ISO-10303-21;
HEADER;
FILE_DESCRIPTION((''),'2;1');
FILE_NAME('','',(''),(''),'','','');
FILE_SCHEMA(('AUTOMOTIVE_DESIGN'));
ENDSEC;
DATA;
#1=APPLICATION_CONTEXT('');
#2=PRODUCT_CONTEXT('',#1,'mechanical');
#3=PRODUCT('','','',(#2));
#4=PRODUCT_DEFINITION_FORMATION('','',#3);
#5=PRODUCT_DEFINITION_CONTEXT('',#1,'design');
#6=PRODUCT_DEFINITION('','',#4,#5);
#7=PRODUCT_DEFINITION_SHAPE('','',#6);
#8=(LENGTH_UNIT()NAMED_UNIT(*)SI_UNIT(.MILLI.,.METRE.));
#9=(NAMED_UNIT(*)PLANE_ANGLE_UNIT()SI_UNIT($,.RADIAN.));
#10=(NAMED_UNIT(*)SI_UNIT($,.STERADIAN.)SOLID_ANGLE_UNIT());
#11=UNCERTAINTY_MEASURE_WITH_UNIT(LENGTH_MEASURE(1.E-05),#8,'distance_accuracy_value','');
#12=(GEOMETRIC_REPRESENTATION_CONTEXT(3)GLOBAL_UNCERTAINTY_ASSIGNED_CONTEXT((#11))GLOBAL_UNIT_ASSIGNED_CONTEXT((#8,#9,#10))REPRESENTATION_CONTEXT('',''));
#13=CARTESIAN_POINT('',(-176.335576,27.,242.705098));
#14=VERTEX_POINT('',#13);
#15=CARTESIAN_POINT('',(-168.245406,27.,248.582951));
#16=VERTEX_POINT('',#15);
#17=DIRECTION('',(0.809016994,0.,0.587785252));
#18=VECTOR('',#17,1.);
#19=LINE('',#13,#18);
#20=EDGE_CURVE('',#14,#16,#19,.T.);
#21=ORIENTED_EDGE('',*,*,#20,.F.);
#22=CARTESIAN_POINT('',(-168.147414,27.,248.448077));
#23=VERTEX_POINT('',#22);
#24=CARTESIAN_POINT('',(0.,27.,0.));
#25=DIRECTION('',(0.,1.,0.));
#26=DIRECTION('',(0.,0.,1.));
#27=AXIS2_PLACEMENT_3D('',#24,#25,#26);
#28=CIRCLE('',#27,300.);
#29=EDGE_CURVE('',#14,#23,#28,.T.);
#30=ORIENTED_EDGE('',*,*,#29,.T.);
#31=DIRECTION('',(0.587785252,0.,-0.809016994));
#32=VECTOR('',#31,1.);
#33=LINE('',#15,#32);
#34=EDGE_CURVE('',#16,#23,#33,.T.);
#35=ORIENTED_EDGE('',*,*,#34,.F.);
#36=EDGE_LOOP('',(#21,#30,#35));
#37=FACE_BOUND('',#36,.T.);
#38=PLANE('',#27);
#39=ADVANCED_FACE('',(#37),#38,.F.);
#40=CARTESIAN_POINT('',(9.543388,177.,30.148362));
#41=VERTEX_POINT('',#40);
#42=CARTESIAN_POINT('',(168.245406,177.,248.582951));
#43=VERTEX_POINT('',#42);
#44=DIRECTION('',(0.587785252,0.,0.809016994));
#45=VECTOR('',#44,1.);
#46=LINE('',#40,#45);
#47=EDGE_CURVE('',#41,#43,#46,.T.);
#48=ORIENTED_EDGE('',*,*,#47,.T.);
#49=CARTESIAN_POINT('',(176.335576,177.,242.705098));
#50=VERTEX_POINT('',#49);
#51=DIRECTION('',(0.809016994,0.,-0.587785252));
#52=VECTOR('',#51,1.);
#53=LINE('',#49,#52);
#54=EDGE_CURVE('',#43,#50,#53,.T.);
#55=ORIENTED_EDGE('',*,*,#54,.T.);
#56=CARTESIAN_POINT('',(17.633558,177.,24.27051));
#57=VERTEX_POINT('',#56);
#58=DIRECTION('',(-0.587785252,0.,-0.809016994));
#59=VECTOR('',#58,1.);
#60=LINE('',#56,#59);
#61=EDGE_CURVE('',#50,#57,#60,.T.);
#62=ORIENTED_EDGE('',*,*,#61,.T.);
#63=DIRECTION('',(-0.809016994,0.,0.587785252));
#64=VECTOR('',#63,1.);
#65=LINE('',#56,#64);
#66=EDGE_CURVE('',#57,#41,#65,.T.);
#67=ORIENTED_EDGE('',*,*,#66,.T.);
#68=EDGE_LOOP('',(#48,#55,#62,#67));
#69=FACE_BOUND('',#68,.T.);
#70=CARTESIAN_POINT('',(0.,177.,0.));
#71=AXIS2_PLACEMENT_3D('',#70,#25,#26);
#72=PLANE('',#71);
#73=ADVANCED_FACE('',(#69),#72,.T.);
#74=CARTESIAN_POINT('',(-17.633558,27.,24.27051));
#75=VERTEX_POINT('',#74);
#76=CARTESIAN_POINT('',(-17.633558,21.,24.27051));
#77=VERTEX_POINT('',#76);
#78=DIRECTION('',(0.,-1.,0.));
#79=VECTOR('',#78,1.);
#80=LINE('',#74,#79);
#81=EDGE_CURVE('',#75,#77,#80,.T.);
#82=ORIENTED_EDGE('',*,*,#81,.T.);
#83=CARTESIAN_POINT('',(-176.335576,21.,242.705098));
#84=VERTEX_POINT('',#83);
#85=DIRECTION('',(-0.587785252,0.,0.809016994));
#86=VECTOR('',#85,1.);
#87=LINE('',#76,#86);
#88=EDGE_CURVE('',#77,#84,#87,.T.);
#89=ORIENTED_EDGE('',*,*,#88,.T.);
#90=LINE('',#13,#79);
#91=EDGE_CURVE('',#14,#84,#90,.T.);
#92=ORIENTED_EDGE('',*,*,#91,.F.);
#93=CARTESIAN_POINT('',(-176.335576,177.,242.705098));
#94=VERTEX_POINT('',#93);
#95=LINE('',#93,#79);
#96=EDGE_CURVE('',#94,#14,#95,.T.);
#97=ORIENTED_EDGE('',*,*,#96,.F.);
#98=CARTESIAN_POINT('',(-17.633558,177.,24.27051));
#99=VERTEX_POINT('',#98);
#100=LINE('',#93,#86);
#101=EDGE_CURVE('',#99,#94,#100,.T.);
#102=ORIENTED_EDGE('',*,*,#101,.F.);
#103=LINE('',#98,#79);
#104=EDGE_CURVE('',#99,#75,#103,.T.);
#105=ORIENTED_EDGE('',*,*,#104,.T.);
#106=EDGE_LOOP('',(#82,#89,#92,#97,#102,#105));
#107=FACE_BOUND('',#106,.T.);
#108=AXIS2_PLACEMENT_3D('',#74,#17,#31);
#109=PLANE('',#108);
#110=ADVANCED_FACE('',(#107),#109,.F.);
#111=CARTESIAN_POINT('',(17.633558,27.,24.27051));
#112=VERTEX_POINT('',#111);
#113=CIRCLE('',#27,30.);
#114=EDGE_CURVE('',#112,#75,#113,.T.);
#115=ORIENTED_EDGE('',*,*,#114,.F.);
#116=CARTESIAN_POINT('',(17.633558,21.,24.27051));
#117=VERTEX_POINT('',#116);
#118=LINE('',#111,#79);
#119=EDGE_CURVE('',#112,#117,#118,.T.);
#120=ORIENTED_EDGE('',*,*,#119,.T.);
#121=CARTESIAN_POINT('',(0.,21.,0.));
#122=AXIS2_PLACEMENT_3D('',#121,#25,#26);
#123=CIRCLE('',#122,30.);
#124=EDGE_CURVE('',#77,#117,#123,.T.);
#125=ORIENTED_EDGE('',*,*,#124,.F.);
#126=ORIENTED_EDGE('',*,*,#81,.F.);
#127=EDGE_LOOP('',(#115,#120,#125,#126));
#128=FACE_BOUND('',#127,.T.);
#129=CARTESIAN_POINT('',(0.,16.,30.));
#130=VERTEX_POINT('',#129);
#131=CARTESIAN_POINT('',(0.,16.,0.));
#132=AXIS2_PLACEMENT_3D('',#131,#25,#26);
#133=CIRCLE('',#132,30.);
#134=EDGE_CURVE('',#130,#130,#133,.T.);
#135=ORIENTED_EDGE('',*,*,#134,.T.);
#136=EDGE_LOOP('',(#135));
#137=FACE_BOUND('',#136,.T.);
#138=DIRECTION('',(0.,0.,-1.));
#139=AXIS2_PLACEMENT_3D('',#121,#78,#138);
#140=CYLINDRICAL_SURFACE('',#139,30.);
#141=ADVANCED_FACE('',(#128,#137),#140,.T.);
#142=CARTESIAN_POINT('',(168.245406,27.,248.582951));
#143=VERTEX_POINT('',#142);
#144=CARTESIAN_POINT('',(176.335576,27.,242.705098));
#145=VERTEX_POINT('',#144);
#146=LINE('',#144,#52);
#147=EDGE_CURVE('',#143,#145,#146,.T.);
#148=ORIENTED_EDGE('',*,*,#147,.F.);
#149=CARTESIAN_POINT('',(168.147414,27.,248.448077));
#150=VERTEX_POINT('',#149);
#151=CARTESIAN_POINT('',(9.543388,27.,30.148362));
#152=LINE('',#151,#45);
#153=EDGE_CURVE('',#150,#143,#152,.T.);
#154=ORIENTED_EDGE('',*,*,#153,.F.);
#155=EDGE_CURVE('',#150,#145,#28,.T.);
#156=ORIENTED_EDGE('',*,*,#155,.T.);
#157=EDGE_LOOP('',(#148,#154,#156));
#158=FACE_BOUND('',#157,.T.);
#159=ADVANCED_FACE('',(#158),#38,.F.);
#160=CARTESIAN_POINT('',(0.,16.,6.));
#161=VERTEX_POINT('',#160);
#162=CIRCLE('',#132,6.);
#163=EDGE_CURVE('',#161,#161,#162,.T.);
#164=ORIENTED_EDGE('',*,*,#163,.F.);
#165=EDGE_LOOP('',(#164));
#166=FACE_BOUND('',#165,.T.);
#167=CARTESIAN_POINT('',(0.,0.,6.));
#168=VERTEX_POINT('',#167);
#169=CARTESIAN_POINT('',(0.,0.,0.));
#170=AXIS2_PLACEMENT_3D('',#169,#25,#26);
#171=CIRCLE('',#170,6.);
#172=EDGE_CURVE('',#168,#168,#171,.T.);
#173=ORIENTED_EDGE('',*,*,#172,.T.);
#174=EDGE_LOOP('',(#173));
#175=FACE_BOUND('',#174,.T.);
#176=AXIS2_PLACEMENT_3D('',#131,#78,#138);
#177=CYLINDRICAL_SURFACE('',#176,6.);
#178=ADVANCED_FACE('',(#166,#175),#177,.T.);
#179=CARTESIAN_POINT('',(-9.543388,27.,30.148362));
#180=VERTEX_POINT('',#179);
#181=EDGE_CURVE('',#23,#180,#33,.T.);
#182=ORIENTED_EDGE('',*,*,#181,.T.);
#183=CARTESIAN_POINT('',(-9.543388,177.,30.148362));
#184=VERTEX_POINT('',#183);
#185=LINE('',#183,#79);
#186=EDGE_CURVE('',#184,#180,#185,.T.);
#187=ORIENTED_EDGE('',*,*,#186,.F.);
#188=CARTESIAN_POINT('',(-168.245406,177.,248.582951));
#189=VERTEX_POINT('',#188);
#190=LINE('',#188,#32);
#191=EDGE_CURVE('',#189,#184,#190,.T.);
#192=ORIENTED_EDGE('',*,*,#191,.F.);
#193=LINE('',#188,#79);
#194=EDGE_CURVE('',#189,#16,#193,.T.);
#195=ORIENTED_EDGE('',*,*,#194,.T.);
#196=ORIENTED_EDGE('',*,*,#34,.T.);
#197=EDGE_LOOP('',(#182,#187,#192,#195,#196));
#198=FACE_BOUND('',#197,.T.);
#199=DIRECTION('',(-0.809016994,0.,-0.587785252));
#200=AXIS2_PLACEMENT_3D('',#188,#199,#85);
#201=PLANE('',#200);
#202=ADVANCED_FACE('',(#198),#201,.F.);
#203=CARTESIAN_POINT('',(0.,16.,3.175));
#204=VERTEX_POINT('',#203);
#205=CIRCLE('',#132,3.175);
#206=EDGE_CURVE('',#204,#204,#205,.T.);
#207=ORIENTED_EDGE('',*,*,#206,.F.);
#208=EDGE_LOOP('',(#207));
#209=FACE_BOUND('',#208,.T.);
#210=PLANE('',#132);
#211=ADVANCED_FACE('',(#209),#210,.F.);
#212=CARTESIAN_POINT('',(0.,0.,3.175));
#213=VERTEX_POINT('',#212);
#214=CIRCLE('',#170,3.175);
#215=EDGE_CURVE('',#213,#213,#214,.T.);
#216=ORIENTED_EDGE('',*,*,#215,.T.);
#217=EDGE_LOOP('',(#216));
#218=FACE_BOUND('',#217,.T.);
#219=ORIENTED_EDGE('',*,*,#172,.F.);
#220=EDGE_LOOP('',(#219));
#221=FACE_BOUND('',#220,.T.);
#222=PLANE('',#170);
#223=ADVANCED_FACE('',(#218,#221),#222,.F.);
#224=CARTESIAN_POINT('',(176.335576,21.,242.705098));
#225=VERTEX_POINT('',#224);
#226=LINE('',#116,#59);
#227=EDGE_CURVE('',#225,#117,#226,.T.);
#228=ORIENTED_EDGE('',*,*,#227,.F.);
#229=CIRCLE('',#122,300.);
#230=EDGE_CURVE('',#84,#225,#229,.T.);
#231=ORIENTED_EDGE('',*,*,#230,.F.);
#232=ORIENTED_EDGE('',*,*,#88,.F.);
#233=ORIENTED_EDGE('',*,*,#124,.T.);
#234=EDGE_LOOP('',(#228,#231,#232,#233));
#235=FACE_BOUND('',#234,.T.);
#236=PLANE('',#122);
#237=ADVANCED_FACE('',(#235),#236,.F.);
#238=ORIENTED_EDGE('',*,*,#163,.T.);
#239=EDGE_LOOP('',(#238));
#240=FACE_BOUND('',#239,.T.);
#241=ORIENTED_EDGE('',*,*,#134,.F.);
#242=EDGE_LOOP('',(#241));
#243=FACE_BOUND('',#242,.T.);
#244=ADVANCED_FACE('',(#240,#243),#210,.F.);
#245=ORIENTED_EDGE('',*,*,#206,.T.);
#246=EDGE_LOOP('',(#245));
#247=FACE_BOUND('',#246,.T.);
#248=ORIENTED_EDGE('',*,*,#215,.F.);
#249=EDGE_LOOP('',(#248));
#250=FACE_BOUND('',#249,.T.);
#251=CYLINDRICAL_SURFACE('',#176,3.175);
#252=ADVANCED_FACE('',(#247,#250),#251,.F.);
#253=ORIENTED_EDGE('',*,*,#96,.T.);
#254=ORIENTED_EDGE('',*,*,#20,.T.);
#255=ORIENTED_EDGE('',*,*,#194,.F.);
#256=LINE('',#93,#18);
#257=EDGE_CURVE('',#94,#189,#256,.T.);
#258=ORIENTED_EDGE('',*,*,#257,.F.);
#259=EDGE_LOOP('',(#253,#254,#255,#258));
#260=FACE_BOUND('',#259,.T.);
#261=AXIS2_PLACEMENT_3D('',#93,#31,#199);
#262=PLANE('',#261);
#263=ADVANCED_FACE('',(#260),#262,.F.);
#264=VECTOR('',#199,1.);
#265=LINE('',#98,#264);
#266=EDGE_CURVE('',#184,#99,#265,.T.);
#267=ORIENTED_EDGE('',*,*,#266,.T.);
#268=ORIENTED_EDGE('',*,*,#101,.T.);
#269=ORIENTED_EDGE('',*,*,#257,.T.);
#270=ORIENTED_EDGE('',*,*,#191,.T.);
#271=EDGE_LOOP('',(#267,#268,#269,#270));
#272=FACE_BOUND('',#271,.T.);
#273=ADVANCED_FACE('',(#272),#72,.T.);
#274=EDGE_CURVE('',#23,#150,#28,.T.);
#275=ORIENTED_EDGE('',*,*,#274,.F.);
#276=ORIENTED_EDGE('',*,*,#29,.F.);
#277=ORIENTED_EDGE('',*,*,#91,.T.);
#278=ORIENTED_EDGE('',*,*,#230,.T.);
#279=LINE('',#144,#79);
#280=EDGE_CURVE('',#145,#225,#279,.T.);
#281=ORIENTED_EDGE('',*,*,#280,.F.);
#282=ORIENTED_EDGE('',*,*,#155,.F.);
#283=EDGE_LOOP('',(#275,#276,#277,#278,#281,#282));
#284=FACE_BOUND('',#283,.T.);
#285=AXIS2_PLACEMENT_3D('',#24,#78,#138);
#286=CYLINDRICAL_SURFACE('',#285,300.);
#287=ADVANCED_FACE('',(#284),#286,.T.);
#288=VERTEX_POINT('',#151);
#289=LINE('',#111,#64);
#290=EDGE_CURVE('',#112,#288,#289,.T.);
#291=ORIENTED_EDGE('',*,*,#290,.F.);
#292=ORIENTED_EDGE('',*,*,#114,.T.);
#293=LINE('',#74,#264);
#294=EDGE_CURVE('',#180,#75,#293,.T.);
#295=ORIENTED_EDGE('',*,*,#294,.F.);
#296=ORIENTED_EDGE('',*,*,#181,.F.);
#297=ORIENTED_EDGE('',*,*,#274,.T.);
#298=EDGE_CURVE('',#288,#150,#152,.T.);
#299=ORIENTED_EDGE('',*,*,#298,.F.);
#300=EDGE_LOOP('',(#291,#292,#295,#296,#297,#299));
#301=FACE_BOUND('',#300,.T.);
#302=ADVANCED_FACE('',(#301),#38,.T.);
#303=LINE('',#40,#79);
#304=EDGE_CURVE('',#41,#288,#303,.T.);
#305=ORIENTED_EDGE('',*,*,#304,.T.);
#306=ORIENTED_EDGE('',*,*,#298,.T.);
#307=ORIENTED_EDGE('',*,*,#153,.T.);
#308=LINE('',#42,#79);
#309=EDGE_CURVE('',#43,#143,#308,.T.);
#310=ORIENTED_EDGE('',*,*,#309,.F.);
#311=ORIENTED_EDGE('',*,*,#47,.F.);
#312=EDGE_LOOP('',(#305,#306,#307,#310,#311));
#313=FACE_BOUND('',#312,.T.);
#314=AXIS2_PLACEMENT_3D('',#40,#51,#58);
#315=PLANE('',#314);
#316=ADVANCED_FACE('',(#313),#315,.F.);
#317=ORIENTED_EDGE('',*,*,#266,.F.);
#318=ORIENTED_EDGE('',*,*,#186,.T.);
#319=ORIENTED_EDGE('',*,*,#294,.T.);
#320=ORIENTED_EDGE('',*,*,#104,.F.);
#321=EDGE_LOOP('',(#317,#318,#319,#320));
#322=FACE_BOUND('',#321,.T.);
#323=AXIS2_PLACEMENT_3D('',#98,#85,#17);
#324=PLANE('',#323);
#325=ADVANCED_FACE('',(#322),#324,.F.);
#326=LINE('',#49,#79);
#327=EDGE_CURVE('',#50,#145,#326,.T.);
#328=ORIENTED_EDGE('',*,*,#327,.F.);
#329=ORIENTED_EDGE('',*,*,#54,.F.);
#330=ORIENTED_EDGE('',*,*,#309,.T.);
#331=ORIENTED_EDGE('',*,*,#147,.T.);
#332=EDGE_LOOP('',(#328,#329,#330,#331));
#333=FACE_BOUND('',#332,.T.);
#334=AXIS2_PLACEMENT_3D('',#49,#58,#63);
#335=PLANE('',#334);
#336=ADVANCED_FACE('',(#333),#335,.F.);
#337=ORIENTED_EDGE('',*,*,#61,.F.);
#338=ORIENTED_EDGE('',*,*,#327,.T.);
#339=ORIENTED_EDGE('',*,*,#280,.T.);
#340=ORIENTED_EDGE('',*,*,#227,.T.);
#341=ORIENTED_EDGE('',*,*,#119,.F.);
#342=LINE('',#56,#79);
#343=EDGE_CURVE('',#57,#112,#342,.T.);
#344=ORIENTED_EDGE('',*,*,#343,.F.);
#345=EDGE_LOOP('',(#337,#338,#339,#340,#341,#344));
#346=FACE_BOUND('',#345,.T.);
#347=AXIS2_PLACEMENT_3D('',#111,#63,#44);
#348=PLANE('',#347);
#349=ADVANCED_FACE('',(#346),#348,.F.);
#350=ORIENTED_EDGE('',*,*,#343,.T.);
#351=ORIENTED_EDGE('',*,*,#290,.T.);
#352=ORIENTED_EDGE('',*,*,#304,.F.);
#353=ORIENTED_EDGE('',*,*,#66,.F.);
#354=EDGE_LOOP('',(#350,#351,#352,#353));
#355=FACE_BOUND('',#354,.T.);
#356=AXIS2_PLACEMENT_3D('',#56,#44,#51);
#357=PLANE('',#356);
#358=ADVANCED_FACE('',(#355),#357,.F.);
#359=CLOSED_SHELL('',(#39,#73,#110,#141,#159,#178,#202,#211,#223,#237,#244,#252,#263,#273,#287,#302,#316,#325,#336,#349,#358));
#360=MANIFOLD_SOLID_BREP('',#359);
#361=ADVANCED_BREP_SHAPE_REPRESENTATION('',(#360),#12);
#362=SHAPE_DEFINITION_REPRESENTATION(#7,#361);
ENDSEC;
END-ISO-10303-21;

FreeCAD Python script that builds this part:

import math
import FreeCAD as App
import Part
import Sketcher
from FreeCAD import Vector
Q = App.Units.Quantity


def add_polygon(sketch, points):
    """Adds a closed chain of lines whose ends are joined by coincident constraints."""
    first, n = sketch.GeometryCount, len(points)
    for a, b in zip(points, points[1:] + points[:1]):
        sketch.addGeometry(Part.LineSegment(App.Vector(*a, 0), App.Vector(*b, 0)), False)
    for i in range(n):
        sketch.addConstraint(Sketcher.Constraint("Coincident", first + i, 2, first + (i + 1) % n, 1))

doc = App.newDocument("Part")
body = doc.addObject("PartDesign::Body", "Body")

# Sketch on XZ plane
sketch1 = body.newObject("Sketcher::SketchObject", "Sketch")
sketch1.AttachmentSupport = (doc.getObject("XZ_Plane"), [""])
sketch1.MapMode = "FlatFace"
sketch1.addGeometry([
    Part.Circle(Vector(0, 0, 0), Vector(0, 0, 1), 6),
    Part.Circle(Vector(0, 0, 0), Vector(0, 0, 1), 3.2),
], False)
sketch1.addConstraint([
    Sketcher.Constraint("Coincident", 0, 3, -1, 1),
    Sketcher.Constraint("Coincident", 1, 3, -1, 1),
    Sketcher.Constraint("Diameter", 0, Q("12 mm")),
    Sketcher.Constraint("Diameter", 1, Q("6.35 mm")),
])
pad1 = body.newObject("PartDesign::Pad", "Pad")
pad1.Profile = sketch1
pad1.Length = 16
pad1.Reversed = True

# Sketch on XZ plane
sketch2 = body.newObject("Sketcher::SketchObject", "Sketch001")
sketch2.AttachmentSupport = (doc.getObject("XZ_Plane"), [""])
sketch2.MapMode = "FlatFace"
sketch2.AttachmentOffset = App.Placement(Vector(0, 0, -16), App.Rotation())
sketch2.addGeometry(Part.Circle(Vector(0, 0, 0), Vector(0, 0, 1), 30), False)
sketch2.addConstraint([
    Sketcher.Constraint("Coincident", 0, 3, -1, 1),
    Sketcher.Constraint("Diameter", 0, Q("60 mm")),
])
pad2 = body.newObject("PartDesign::Pad", "Pad001")
pad2.Profile = sketch2
pad2.Length = 5
pad2.Reversed = True

# Sketch on XZ plane
sketch3 = body.newObject("Sketcher::SketchObject", "Sketch002")
sketch3.AttachmentSupport = (doc.getObject("XZ_Plane"), [""])
sketch3.MapMode = "FlatFace"
sketch3.AttachmentOffset = App.Placement(Vector(0, 0, -21), App.Rotation())
sketch3.addGeometry([
    Part.LineSegment(Vector(176, 243, 0), Vector(18, 24, 0)),
    Part.ArcOfCircle(Part.Circle(Vector(0, 0, 0), Vector(0, 0, 1), 30), math.radians(126), math.radians(414)),
    Part.LineSegment(Vector(-18, 24, 0), Vector(-176, 243, 0)),
    Part.ArcOfCircle(Part.Circle(Vector(0, 0, 0), Vector(0, 0, 1), 300), math.radians(54), math.radians(126)),
], False)
sketch3.addConstraint([
    Sketcher.Constraint("Coincident", 0, 2, 1, 2),
    Sketcher.Constraint("Coincident", 1, 1, 2, 1),
    Sketcher.Constraint("Coincident", 2, 2, 3, 2),
    Sketcher.Constraint("Coincident", 3, 1, 0, 1),
    Sketcher.Constraint("Coincident", 1, 3, -1, 1),
    Sketcher.Constraint("Coincident", 3, 3, -1, 1),
    Sketcher.Constraint("Horizontal", 0, 2, 1, 1),
    Sketcher.Constraint("Horizontal", 2, 2, 3, 1),
    Sketcher.Constraint("Radius", 1, Q("30 mm")),
    Sketcher.Constraint("Radius", 3, Q("300 mm")),
    Sketcher.Constraint("Angle", 0, Q("-126 deg")),
    Sketcher.Constraint("DistanceY", -1, 1, 2, 2, Q("242.705098 mm")),
])
pad3 = body.newObject("PartDesign::Pad", "Pad002")
pad3.Profile = sketch3
pad3.Length = 6
pad3.Reversed = True

# Sketch on XZ plane
sketch4 = body.newObject("Sketcher::SketchObject", "Sketch003")
sketch4.AttachmentSupport = (doc.getObject("XZ_Plane"), [""])
sketch4.MapMode = "FlatFace"
sketch4.AttachmentOffset = App.Placement(Vector(0, 0, -27), App.Rotation())
add_polygon(sketch4, [(-18, 24), (-176, 243), (-168, 249), (-10, 30)])  # lines 0-3
add_polygon(sketch4, [(176, 243), (18, 24), (10, 30), (168, 249)])  # lines 4-7
sketch4.addConstraint([
    Sketcher.Constraint("Symmetric", 3, 2, 4, 2, -2),
    Sketcher.Constraint("Symmetric", 2, 2, 5, 2, -2),
    Sketcher.Constraint("Symmetric", 1, 2, 6, 2, -2),
    Sketcher.Constraint("Symmetric", 0, 2, 7, 2, -2),
    Sketcher.Constraint("Perpendicular", 0, 1),
    Sketcher.Constraint("Perpendicular", 1, 2),
    Sketcher.Constraint("Perpendicular", 2, 3),
    Sketcher.Constraint("Angle", 0, Q("126 deg")),
    Sketcher.Constraint("Distance", 0, Q("270 mm")),
    Sketcher.Constraint("Distance", 1, Q("10 mm")),
    Sketcher.Constraint("DistanceY", -1, 1, 0, 2, Q("242.705098 mm")),
    Sketcher.Constraint("DistanceX", 1, 2, 6, 2, Q("336.490811 mm")),
])
pad4 = body.newObject("PartDesign::Pad", "Pad003")
pad4.Profile = sketch4
pad4.Length = 150
pad4.Reversed = True

doc.recompute()
